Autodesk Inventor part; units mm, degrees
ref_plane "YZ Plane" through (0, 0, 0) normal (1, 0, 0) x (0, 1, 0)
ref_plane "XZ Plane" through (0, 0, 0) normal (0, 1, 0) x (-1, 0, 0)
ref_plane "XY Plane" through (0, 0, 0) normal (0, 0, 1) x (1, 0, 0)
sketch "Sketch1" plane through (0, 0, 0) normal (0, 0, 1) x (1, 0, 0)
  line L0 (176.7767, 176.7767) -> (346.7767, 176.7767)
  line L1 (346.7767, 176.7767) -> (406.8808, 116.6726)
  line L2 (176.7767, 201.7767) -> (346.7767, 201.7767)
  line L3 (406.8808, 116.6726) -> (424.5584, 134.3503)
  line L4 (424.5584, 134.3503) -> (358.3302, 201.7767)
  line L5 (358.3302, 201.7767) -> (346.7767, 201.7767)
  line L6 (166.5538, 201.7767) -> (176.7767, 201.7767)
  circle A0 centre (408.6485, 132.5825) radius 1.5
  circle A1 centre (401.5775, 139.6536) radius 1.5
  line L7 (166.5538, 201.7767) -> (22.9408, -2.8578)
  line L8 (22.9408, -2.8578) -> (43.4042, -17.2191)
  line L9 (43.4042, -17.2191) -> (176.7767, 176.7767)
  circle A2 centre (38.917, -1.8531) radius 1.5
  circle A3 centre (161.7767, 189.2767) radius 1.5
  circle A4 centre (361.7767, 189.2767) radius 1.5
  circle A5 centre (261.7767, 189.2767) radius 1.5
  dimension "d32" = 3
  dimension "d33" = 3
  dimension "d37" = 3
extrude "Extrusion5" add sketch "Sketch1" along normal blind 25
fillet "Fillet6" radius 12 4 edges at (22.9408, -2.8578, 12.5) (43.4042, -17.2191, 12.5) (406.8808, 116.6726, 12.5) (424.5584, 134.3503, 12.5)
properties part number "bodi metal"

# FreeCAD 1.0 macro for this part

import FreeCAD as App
import Part
import Sketcher
Q = App.Units.Quantity


def edges_at(feature, points):
    """Names of the edges that pass closest to the given points."""
    edges = feature.Shape.Edges
    near = lambda p: min(range(len(edges)), key=lambda i: edges[i].distToShape(Part.Vertex(*p))[0])
    return sorted({f"Edge{near(p) + 1}" for p in points})


def add_polygon(sketch, points):
    """Adds a closed chain of lines whose ends are joined by coincident constraints."""
    first, n = sketch.GeometryCount, len(points)
    for a, b in zip(points, points[1:] + points[:1]):
        sketch.addGeometry(Part.LineSegment(App.Vector(*a, 0), App.Vector(*b, 0)), False)
    for i in range(n):
        sketch.addConstraint(Sketcher.Constraint("Coincident", first + i, 2, first + (i + 1) % n, 1))

doc = App.newDocument("Part")
params = doc.addObject("Spreadsheet::Sheet", "Params")
for row, (alias, value) in enumerate([
    ("sketch1_diameter", "3 mm"),
    ("sketch1_width", "170 mm"),
    ("sketch1_length", "85 mm"),
    ("sketch1_length2", "25 mm"),
    ("sketch1_length3", "250 mm"),
    ("pad1_length", "25 mm"),
    ("fillet_radius", "12 mm"),
], start=1):
    params.set(f"A{row}", alias)
    params.set(f"B{row}", "=" + value)
    params.setAlias(f"B{row}", alias)

body = doc.addObject("PartDesign::Body", "Body")

sketch1 = body.newObject("Sketcher::SketchObject", "Sketch")
sketch1.AttachmentSupport = (doc.getObject("XY_Plane"), [""])
sketch1.MapMode = "FlatFace"
add_polygon(sketch1, [(43.4042, -17.2191), (176.7767, 176.7767), (346.7767, 176.7767), (406.8808, 116.6726), (424.5584, 134.3503), (358.3302, 201.7767), (166.5538, 201.7767), (22.9408, -2.8578)])
sketch1.addGeometry(Part.Circle(App.Vector(38.917, -1.8531, 0), App.Vector(0, 0, 1), 1.5), False)
sketch1.addGeometry(Part.Circle(App.Vector(161.7767, 189.2767, 0), App.Vector(0, 0, 1), 1.5), False)
sketch1.addGeometry(Part.Circle(App.Vector(408.6485, 132.5825, 0), App.Vector(0, 0, 1), 1.5), False)
sketch1.addGeometry(Part.Circle(App.Vector(401.5775, 139.6536, 0), App.Vector(0, 0, 1), 1.5), False)
sketch1.addGeometry(Part.Circle(App.Vector(261.7767, 189.2767, 0), App.Vector(0, 0, 1), 1.5), False)
sketch1.addGeometry(Part.Circle(App.Vector(361.7767, 189.2767, 0), App.Vector(0, 0, 1), 1.5), False)
sketch1.addConstraint([
    Sketcher.Constraint("Horizontal", 1),
    Sketcher.Constraint("Horizontal", 5),
    Sketcher.Constraint("Equal", 8, 9),
    Sketcher.Constraint("Equal", 9, 10),
    Sketcher.Constraint("Equal", 10, 11),
    Sketcher.Constraint("Equal", 11, 12),
    Sketcher.Constraint("Equal", 12, 13),
    Sketcher.Constraint("Perpendicular", 2, 3),
    Sketcher.Constraint("Perpendicular", 6, 7),
    Sketcher.Constraint("Horizontal", 9, 3, 12, 3),
    Sketcher.Constraint("Horizontal", 12, 3, 13, 3),
    Sketcher.Constraint("Equal", 3, 7),
    Sketcher.Constraint("Diameter", 8, Q("3 mm")),
    Sketcher.Constraint("DistanceX", 1, 1, 1, 2, Q("170 mm")),
    Sketcher.Constraint("Angle", 2, Q("-45 deg")),
    Sketcher.Constraint("Distance", 2, Q("85 mm")),
    Sketcher.Constraint("Distance", 3, Q("25 mm")),
    Sketcher.Constraint("Distance", 6, Q("250 mm")),
    Sketcher.Constraint("DistanceX", 9, 3, 12, 3, Q("100 mm")),
    Sketcher.Constraint("DistanceX", 12, 3, 13, 3, Q("100 mm")),
    Sketcher.Constraint("DistanceX", 9, 3, 0, 2, Q("15 mm")),
    Sketcher.Constraint("DistanceY", 1, 2, 4, 2, Q("25 mm")),
    Sketcher.Constraint("DistanceY", 0, 2, 9, 3, Q("12.5 mm")),
    Sketcher.Constraint("Distance", 0, Q("235.42 mm")),
    Sketcher.Constraint("DistanceY", 2, 2, 10, 3, Q("15.91 mm")),
    Sketcher.Constraint("DistanceX", 10, 3, 3, 2, Q("15.91 mm")),
    Sketcher.Constraint("DistanceX", 5, 2, 5, 1, Q("191.7764 mm")),
    Sketcher.Constraint("DistanceX", -1, 1, 8, 3, Q("38.917 mm")),
    Sketcher.Constraint("DistanceY", 8, 3, -1, 1, Q("1.853 mm")),
    Sketcher.Constraint("DistanceY", 7, 2, -1, 1, Q("17.219 mm")),
    Sketcher.Constraint("DistanceX", 11, 3, 10, 3, Q("7.071 mm")),
    Sketcher.Constraint("DistanceY", 10, 3, 11, 3, Q("7.071 mm")),
    Sketcher.Constraint("DistanceX", 9, 3, 5, 2, Q("4.777 mm")),
    Sketcher.Constraint("DistanceX", -1, 1, 9, 3, Q("161.7767 mm")),
])
sketch1.setExpression("Constraints[20]", "Params.sketch1_diameter")
sketch1.setExpression("Constraints[21]", "Params.sketch1_width")
sketch1.setExpression("Constraints[23]", "Params.sketch1_length")
sketch1.setExpression("Constraints[24]", "Params.sketch1_length2")
sketch1.setExpression("Constraints[25]", "Params.sketch1_length3")
pad1 = body.newObject("PartDesign::Pad", "Pad")
pad1.Profile = sketch1
pad1.setExpression("Length", "Params.pad1_length")
doc.recompute()

fillet = body.newObject("PartDesign::Fillet", "Fillet")
fillet.Base = (pad1, edges_at(pad1, [
    (22.941, -2.858, 12.5),
    (43.404, -17.219, 12.5),
    (406.881, 116.673, 12.5),
    (424.558, 134.35, 12.5),
]))
fillet.setExpression("Radius", "Params.fillet_radius")

doc.recompute()
